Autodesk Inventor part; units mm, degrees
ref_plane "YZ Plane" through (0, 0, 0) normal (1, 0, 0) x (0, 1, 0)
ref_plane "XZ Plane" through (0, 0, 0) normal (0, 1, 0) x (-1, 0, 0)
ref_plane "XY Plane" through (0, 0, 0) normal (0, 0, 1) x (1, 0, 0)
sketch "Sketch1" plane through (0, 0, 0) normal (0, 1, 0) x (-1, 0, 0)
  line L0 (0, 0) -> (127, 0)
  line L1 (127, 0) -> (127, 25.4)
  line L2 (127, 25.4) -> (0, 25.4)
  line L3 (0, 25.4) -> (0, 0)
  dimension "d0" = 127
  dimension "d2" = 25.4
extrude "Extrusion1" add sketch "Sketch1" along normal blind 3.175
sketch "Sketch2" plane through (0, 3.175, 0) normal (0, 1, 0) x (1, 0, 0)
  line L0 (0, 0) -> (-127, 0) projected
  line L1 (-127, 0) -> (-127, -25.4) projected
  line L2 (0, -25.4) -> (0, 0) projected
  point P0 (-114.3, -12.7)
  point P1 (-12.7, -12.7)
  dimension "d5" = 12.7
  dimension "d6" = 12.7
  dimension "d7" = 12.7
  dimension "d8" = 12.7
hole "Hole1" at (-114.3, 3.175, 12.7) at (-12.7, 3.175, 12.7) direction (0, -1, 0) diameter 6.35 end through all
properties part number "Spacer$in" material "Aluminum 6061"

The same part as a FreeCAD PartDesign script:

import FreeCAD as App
import Part
import Sketcher

V = App.Vector
Q = App.Units.Quantity


def add_polygon(sketch, points):
    """Adds a closed chain of lines whose ends are joined by coincident constraints."""
    first, n = sketch.GeometryCount, len(points)
    for a, b in zip(points, points[1:] + points[:1]):
        sketch.addGeometry(Part.LineSegment(App.Vector(*a, 0), App.Vector(*b, 0)), False)
    for i in range(n):
        sketch.addConstraint(Sketcher.Constraint("Coincident", first + i, 2, first + (i + 1) % n, 1))

doc = App.newDocument("Part")
params = doc.addObject("Spreadsheet::Sheet", "Params")
for row, (alias, value) in enumerate([
    ("sketch1_width", "5 in"),
    ("sketch1_height", "1 in"),
    ("pad1_length", "0.125 in"),
    ("sketch2_diameter", "0.25 in"),
    ("hole_diameter", "0.25 in"),
], start=1):
    params.set(f"A{row}", alias)
    params.set(f"B{row}", "=" + value)
    params.setAlias(f"B{row}", alias)

body = doc.addObject("PartDesign::Body", "Body")

sketch1 = body.newObject("Sketcher::SketchObject", "Sketch")
sketch1.AttachmentSupport = (doc.getObject("XZ_Plane"), [""])
sketch1.MapMode = "FlatFace"
add_polygon(sketch1, [(0, 25.4), (0, 0), (-127, 0), (-127, 25.4)])
sketch1.addConstraint([
    Sketcher.Constraint("Vertical", 0),
    Sketcher.Constraint("Horizontal", 1),
    Sketcher.Constraint("Vertical", 2),
    Sketcher.Constraint("Horizontal", 3),
    Sketcher.Constraint("Coincident", 0, 2, -1, 1),
    Sketcher.Constraint("DistanceX", 1, 2, 1, 1, Q("5 in")),
    Sketcher.Constraint("DistanceY", 0, 2, 0, 1, Q("1 in")),
])
sketch1.setExpression("Constraints[9]", "Params.sketch1_width")
sketch1.setExpression("Constraints[10]", "Params.sketch1_height")
pad1 = body.newObject("PartDesign::Pad", "Pad")
pad1.Profile = sketch1
pad1.setExpression("Length", "Params.pad1_length")
pad1.Reversed = True

sketch2 = body.newObject("Sketcher::SketchObject", "Sketch001")
sketch2.AttachmentSupport = (doc.getObject("XZ_Plane"), [""])
sketch2.MapMode = "FlatFace"
sketch2.AttachmentOffset = App.Placement(V(0, 0, -0.125 * 25.4), App.Rotation())
sketch2.addGeometry([
    Part.Circle(V(-114.3, 12.7, 0), V(0, 0, 1), 3.175),
    Part.Circle(V(-12.7, 12.7, 0), V(0, 0, 1), 3.175),
], False)
sketch2.addConstraint([
    Sketcher.Constraint("Equal", 0, 1),
    Sketcher.Constraint("Horizontal", 0, 3, 1, 3),
    Sketcher.Constraint("Diameter", 0, Q("0.25 in")),
    Sketcher.Constraint("DistanceX", 0, 3, 1, 3, Q("4 in")),
    Sketcher.Constraint("DistanceX", 0, 3, -1, 1, Q("4.5 in")),
    Sketcher.Constraint("DistanceY", -1, 1, 0, 3, Q("0.5 in")),
])
sketch2.setExpression("Constraints[2]", "Params.sketch2_diameter")
doc.recompute()
hole = body.newObject("PartDesign::Hole", "Hole")
hole.Profile = sketch2
hole.ThreadType = "None"
hole.setExpression("Diameter", "Params.hole_diameter")
hole.DepthType = "ThroughAll"
hole.Reversed = True

doc.recompute()
